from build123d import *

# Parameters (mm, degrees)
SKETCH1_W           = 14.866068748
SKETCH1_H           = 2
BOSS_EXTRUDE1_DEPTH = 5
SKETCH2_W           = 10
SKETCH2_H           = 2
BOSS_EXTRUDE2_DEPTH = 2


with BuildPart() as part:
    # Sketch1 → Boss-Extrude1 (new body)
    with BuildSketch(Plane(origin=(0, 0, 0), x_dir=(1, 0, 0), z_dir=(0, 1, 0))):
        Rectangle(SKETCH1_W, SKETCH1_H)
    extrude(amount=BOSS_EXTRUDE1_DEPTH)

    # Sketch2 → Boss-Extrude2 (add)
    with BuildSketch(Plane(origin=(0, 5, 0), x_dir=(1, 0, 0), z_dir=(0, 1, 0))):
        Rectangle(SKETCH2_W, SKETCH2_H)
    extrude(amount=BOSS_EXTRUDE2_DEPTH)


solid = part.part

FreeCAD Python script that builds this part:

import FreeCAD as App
import Part
import Sketcher

V = App.Vector
Q = App.Units.Quantity


def add_polygon(sketch, points):
    """Adds a closed chain of lines whose ends are joined by coincident constraints."""
    first, n = sketch.GeometryCount, len(points)
    for a, b in zip(points, points[1:] + points[:1]):
        sketch.addGeometry(Part.LineSegment(App.Vector(*a, 0), App.Vector(*b, 0)), False)
    for i in range(n):
        sketch.addConstraint(Sketcher.Constraint("Coincident", first + i, 2, first + (i + 1) % n, 1))

doc = App.newDocument("Part")
body = doc.addObject("PartDesign::Body", "Body")

# Sketch on XZ plane
sketch1 = body.newObject("Sketcher::SketchObject", "Sketch")
sketch1.AttachmentSupport = (doc.getObject("XZ_Plane"), [""])
sketch1.MapMode = "FlatFace"
add_polygon(sketch1, [(-7.433034, -1), (-7.433034, 1), (7.433034, 1), (7.433034, -1)])  # lines 0-3
sketch1.addConstraint([
    Sketcher.Constraint("Vertical", 0),
    Sketcher.Constraint("Horizontal", 1),
    Sketcher.Constraint("Vertical", 2),
    Sketcher.Constraint("Horizontal", 3),
    Sketcher.Constraint("Symmetric", 0, 2, 2, 2, -1, 1),
    Sketcher.Constraint("DistanceY", 0, 1, 0, 2, Q("2 mm")),
    Sketcher.Constraint("DistanceX", 1, 1, 1, 2, Q("14.866069 mm")),
])
pad1 = body.newObject("PartDesign::Pad", "Pad")
pad1.Profile = sketch1
pad1.Length = 5
pad1.Reversed = True

# Sketch on XZ plane
sketch2 = body.newObject("Sketcher::SketchObject", "Sketch001")
sketch2.AttachmentSupport = (doc.getObject("XZ_Plane"), [""])
sketch2.MapMode = "FlatFace"
sketch2.AttachmentOffset = App.Placement(V(0, 0, -5), App.Rotation())
add_polygon(sketch2, [(-5, -1), (-5, 1), (5, 1), (5, -1)])  # lines 0-3
sketch2.addConstraint([
    Sketcher.Constraint("Vertical", 0),
    Sketcher.Constraint("Horizontal", 1),
    Sketcher.Constraint("Vertical", 2),
    Sketcher.Constraint("Horizontal", 3),
    Sketcher.Constraint("Symmetric", 0, 2, 2, 2, -1, 1),
    Sketcher.Constraint("DistanceX", 1, 1, 1, 2, Q("10 mm")),
    Sketcher.Constraint("DistanceY", 0, 1, 0, 2, Q("2 mm")),
])
pad2 = body.newObject("PartDesign::Pad", "Pad001")
pad2.Profile = sketch2
pad2.Length = 2
pad2.Reversed = True

doc.recompute()
